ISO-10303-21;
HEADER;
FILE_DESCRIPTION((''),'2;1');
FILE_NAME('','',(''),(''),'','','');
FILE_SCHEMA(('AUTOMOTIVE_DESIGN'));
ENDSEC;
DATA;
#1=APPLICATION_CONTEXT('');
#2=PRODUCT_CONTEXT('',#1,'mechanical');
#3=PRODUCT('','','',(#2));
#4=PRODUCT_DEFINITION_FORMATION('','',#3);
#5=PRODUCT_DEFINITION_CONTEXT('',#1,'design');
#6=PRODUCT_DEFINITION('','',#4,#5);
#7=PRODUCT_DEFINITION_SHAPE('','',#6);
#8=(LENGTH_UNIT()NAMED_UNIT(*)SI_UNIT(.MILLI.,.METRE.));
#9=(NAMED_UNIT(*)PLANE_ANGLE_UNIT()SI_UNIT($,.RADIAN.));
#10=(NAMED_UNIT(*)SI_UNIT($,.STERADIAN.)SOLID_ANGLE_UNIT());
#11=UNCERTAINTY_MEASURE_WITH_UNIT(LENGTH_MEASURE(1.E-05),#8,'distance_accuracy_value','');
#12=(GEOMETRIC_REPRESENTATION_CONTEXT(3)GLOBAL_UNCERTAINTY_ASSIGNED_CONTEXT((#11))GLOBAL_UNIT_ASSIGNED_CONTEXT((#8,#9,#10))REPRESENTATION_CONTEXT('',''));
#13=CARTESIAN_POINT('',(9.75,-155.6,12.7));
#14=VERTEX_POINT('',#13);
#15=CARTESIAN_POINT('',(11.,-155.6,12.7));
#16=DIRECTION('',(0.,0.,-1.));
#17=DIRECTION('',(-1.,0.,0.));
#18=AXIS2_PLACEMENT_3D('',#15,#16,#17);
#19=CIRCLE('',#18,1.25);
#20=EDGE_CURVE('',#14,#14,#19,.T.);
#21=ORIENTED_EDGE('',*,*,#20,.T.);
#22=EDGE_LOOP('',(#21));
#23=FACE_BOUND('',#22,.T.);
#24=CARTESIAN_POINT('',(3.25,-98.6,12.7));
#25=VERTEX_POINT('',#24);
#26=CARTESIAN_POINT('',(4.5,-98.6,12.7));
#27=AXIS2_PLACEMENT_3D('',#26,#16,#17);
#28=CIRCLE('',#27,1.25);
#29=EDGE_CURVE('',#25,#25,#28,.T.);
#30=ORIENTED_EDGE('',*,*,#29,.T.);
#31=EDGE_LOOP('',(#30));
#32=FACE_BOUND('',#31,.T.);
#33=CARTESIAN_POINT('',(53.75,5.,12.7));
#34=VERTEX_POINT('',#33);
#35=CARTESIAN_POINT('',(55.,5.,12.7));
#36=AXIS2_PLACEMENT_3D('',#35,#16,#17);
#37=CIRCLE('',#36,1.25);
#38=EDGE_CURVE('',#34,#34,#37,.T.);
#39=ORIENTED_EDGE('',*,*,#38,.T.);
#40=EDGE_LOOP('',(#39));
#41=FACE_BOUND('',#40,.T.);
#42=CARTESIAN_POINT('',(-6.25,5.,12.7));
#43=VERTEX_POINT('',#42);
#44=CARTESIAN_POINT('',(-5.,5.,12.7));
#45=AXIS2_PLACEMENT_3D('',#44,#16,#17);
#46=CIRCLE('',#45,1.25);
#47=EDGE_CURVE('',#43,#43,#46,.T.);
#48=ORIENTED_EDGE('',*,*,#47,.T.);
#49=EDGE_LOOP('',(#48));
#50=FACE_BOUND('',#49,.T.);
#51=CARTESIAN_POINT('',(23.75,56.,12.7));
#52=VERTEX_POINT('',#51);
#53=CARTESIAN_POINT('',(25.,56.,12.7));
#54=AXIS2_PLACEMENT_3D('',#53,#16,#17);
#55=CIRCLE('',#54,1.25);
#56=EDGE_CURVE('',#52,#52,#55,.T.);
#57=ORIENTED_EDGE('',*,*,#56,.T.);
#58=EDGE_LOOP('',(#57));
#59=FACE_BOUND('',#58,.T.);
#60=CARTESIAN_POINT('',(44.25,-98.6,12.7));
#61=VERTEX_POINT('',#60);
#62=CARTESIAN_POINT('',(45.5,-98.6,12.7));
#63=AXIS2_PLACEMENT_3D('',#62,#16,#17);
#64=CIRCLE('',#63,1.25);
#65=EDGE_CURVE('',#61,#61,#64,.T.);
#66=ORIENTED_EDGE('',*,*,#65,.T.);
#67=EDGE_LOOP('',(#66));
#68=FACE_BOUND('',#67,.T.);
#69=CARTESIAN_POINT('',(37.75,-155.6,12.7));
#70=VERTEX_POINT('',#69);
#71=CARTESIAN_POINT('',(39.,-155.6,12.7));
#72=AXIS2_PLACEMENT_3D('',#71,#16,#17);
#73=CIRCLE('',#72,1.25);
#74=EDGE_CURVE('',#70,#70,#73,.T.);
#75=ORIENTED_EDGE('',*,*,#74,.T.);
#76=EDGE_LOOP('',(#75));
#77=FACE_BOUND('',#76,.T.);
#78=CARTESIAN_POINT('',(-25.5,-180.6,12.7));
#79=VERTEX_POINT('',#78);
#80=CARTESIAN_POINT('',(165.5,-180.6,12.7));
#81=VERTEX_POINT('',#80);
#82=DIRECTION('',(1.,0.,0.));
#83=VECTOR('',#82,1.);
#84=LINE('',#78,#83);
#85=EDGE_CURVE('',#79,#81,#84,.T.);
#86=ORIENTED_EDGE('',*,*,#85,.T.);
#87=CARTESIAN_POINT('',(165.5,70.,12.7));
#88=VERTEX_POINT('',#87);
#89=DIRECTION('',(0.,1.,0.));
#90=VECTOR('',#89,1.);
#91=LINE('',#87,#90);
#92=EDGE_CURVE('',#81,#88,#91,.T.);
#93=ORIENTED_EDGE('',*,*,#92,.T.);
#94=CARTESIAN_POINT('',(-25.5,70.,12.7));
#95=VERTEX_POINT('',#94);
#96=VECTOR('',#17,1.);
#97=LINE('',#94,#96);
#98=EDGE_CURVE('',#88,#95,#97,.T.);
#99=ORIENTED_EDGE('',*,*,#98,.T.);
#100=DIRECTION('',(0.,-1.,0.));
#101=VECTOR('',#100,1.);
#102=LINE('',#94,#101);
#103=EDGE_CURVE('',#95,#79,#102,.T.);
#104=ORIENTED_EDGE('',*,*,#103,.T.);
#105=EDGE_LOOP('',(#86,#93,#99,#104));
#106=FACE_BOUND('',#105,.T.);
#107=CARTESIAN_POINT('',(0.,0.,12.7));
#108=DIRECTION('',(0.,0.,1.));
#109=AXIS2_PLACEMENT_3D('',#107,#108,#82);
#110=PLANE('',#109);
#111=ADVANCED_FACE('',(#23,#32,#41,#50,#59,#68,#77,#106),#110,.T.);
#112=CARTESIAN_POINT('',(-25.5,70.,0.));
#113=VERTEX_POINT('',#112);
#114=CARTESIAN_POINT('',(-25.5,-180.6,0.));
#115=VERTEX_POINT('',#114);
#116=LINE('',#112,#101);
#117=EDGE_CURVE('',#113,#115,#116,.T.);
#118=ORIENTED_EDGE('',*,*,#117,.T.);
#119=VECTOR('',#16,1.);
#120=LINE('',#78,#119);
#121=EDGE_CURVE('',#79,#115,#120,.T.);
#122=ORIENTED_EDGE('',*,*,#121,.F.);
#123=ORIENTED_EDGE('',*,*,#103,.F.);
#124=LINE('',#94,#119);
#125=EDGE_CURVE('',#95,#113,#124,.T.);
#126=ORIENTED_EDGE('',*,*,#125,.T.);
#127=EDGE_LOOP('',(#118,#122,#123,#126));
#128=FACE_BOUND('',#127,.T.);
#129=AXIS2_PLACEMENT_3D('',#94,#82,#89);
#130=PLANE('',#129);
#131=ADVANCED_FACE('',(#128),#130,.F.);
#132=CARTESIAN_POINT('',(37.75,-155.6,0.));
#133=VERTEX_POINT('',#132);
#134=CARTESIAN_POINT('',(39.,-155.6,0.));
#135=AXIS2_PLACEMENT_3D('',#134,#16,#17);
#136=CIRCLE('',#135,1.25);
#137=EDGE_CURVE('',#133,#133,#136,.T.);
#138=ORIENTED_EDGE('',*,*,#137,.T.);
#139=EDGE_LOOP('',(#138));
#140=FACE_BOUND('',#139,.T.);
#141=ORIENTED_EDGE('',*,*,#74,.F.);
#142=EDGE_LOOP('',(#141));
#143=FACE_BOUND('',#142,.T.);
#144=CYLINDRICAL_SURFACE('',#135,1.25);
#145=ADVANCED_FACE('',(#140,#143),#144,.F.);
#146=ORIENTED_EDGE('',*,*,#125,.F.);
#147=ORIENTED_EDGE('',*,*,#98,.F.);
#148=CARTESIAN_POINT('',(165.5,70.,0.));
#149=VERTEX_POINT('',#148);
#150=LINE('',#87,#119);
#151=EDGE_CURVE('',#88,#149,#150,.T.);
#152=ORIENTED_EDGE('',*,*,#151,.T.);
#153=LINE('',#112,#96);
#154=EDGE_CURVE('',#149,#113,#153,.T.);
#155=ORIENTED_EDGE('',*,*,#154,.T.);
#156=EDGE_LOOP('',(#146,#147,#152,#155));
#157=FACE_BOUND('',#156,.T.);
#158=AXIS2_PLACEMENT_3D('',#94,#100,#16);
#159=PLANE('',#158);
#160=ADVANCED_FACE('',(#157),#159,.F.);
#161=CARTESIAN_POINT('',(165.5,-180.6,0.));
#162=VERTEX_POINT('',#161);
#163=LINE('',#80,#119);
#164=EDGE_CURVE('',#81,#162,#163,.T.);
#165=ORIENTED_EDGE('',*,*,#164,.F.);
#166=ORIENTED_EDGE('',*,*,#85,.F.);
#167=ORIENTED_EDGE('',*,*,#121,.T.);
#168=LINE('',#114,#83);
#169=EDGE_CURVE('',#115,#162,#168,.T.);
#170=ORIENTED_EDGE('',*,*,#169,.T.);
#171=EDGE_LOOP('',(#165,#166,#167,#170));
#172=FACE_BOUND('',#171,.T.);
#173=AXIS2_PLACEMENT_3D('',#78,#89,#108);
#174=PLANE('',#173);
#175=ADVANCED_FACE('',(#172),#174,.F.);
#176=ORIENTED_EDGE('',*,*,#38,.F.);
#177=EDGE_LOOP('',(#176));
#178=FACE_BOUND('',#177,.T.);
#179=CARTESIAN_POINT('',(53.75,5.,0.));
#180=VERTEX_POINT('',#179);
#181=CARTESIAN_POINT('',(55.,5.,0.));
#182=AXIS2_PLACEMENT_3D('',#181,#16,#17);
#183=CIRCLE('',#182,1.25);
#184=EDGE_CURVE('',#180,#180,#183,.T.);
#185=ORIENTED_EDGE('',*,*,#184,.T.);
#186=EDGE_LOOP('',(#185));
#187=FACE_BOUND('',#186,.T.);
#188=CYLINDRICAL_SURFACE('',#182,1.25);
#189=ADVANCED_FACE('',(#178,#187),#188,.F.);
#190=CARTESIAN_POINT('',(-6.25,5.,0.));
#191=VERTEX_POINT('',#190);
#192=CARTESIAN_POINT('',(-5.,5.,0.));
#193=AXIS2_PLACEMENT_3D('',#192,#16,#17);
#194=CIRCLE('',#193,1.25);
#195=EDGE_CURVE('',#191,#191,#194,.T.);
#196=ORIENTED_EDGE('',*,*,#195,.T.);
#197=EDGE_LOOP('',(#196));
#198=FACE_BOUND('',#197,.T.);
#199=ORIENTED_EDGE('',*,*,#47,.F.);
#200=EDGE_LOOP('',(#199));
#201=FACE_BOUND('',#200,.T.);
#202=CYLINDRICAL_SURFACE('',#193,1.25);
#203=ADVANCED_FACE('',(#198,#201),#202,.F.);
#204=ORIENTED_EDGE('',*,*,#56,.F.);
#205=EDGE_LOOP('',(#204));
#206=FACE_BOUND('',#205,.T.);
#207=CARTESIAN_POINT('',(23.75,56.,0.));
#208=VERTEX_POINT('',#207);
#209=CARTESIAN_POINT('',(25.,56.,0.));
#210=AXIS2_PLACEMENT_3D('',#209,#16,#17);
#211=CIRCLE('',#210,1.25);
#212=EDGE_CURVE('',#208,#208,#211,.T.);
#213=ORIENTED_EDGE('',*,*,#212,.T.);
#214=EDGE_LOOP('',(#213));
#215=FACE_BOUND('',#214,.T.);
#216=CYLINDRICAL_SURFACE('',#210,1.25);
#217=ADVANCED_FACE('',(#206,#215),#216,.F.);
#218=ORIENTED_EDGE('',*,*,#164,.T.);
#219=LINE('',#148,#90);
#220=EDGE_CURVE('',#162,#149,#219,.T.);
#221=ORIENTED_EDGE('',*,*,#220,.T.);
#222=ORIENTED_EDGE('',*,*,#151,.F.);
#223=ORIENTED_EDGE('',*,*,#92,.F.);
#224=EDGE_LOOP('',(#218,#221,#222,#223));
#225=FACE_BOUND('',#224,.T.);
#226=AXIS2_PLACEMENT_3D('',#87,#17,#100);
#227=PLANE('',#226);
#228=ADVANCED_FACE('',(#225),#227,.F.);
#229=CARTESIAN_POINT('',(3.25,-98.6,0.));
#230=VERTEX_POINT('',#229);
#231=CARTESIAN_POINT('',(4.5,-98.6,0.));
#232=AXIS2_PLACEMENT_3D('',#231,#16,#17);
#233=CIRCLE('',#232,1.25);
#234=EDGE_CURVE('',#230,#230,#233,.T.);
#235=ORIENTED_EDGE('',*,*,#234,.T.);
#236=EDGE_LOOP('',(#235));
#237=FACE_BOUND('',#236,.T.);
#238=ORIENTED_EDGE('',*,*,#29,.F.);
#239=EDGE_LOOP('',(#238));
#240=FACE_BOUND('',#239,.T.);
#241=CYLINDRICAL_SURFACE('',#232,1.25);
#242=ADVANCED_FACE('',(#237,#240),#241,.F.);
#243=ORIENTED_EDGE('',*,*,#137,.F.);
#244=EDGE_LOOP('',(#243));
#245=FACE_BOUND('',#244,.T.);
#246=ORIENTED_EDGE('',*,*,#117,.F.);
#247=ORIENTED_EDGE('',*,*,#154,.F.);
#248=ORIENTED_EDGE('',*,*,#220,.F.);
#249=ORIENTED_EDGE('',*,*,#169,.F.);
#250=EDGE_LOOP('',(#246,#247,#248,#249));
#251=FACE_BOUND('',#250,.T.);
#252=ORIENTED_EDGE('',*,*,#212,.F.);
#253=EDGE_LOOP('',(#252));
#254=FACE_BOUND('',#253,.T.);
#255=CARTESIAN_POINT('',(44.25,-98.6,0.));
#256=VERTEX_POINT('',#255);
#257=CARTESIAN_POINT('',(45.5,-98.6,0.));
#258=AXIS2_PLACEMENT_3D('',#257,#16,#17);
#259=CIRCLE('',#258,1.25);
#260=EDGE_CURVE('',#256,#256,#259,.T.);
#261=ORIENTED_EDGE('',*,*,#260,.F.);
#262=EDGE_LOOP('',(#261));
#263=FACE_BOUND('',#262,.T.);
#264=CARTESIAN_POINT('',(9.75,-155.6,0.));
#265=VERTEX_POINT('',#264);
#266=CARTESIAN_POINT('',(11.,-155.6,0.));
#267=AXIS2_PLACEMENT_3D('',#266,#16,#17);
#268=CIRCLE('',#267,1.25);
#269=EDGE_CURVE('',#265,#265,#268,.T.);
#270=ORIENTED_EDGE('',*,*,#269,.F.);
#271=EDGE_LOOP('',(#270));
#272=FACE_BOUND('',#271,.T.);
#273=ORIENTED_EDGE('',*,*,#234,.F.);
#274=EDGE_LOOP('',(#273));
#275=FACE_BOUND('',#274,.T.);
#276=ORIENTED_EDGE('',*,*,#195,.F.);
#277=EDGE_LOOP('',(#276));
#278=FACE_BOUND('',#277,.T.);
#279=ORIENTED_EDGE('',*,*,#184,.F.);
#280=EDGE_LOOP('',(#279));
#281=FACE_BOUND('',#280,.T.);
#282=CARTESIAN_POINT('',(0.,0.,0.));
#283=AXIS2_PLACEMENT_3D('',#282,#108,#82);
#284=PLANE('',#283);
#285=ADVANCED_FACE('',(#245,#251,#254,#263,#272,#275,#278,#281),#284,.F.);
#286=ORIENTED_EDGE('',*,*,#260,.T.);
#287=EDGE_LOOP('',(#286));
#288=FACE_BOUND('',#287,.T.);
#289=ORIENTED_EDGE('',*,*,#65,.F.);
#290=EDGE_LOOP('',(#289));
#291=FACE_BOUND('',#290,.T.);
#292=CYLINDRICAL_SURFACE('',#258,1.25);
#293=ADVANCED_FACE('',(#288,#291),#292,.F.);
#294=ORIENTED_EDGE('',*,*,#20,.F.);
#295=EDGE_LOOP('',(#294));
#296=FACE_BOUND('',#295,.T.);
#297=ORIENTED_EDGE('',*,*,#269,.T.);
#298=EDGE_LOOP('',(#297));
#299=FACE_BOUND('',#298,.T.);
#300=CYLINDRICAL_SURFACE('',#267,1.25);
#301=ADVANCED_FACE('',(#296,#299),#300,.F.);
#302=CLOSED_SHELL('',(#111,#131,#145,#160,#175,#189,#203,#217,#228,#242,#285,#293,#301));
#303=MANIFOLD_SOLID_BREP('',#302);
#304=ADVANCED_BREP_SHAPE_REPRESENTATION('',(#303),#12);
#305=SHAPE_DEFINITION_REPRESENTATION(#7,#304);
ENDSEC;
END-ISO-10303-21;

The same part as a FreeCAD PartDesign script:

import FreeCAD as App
import Part
import Sketcher
Q = App.Units.Quantity


def add_polygon(sketch, points):
    """Adds a closed chain of lines whose ends are joined by coincident constraints."""
    first, n = sketch.GeometryCount, len(points)
    for a, b in zip(points, points[1:] + points[:1]):
        sketch.addGeometry(Part.LineSegment(App.Vector(*a, 0), App.Vector(*b, 0)), False)
    for i in range(n):
        sketch.addConstraint(Sketcher.Constraint("Coincident", first + i, 2, first + (i + 1) % n, 1))

doc = App.newDocument("Part")
body = doc.addObject("PartDesign::Body", "Body")

# Sketch on XY plane
sketch1 = body.newObject("Sketcher::SketchObject", "Sketch")
sketch1.AttachmentSupport = (doc.getObject("XY_Plane"), [""])
sketch1.MapMode = "FlatFace"
add_polygon(sketch1, [(-26, 70), (-26, -181), (166, -181), (166, 70)])  # lines 0-3
sketch1.addConstraint([
    Sketcher.Constraint("Vertical", 0),
    Sketcher.Constraint("Horizontal", 1),
    Sketcher.Constraint("Vertical", 2),
    Sketcher.Constraint("Horizontal", 3),
    Sketcher.Constraint("DistanceX", 1, 1, 1, 2, Q("191 mm")),
    Sketcher.Constraint("DistanceY", 0, 2, 0, 1, Q("250.6 mm")),
    Sketcher.Constraint("DistanceY", -1, 1, 2, 2, Q("70 mm")),
    Sketcher.Constraint("DistanceX", 0, 2, -1, 1, Q("25.5 mm")),
])
pad1 = body.newObject("PartDesign::Pad", "Pad")
pad1.Profile = sketch1
pad1.Length = 12.7

# Sketch on XY plane
sketch2 = body.newObject("Sketcher::SketchObject", "Sketch001")
sketch2.AttachmentSupport = (doc.getObject("XY_Plane"), [""])
sketch2.MapMode = "FlatFace"
sketch2.addGeometry([
    Part.Circle(App.Vector(25, 56, 0), App.Vector(0, 0, 1), 1.2),  # 0
    Part.Circle(App.Vector(55, 5, 0), App.Vector(0, 0, 1), 1.2),  # 1
    Part.Circle(App.Vector(-5, 5, 0), App.Vector(0, 0, 1), 1.2),  # 2
    Part.Circle(App.Vector(45.5, -98.6, 0), App.Vector(0, 0, 1), 1.2),  # 3
    Part.Circle(App.Vector(4.5, -98.6, 0), App.Vector(0, 0, 1), 1.2),  # 4
    Part.Circle(App.Vector(11, -155.6, 0), App.Vector(0, 0, 1), 1.2),  # 5
    Part.Circle(App.Vector(39, -155.6, 0), App.Vector(0, 0, 1), 1.2),  # 6
], False)
sketch2.addConstraint([
    Sketcher.Constraint("Equal", 0, 1),
    Sketcher.Constraint("Equal", 1, 2),
    Sketcher.Constraint("Equal", 2, 3),
    Sketcher.Constraint("Equal", 3, 4),
    Sketcher.Constraint("Equal", 4, 5),
    Sketcher.Constraint("Equal", 5, 6),
    Sketcher.Constraint("Horizontal", 1, 3, 2, 3),
    Sketcher.Constraint("Horizontal", 3, 3, 4, 3),
    Sketcher.Constraint("Horizontal", 5, 3, 6, 3),
    Sketcher.Constraint("Diameter", 0, Q("2.5 mm")),
    Sketcher.Constraint("DistanceX", -1, 1, 0, 3, Q("25 mm")),
    Sketcher.Constraint("DistanceY", -1, 1, 0, 3, Q("56 mm")),
    Sketcher.Constraint("DistanceX", -1, 1, 1, 3, Q("55 mm")),
    Sketcher.Constraint("DistanceY", -1, 1, 1, 3, Q("5 mm")),
    Sketcher.Constraint("DistanceX", 2, 3, -1, 1, Q("5 mm")),
    Sketcher.Constraint("DistanceX", -1, 1, 5, 3, Q("11 mm")),
    Sketcher.Constraint("DistanceX", -1, 1, 6, 3, Q("39 mm")),
    Sketcher.Constraint("DistanceX", 4, 3, 3, 3, Q("41 mm")),
    Sketcher.Constraint("DistanceY", 5, 3, 4, 3, Q("57 mm")),
    Sketcher.Constraint("DistanceX", -1, 1, 3, 3, Q("45.5 mm")),
    Sketcher.Constraint("DistanceY", 3, 3, -1, 1, Q("98.6 mm")),
])
doc.recompute()
hole = body.newObject("PartDesign::Hole", "Hole")
hole.Profile = sketch2
hole.ThreadType = "None"
hole.Diameter = 2.5
hole.DepthType = "ThroughAll"
hole.Reversed = True

doc.recompute()
